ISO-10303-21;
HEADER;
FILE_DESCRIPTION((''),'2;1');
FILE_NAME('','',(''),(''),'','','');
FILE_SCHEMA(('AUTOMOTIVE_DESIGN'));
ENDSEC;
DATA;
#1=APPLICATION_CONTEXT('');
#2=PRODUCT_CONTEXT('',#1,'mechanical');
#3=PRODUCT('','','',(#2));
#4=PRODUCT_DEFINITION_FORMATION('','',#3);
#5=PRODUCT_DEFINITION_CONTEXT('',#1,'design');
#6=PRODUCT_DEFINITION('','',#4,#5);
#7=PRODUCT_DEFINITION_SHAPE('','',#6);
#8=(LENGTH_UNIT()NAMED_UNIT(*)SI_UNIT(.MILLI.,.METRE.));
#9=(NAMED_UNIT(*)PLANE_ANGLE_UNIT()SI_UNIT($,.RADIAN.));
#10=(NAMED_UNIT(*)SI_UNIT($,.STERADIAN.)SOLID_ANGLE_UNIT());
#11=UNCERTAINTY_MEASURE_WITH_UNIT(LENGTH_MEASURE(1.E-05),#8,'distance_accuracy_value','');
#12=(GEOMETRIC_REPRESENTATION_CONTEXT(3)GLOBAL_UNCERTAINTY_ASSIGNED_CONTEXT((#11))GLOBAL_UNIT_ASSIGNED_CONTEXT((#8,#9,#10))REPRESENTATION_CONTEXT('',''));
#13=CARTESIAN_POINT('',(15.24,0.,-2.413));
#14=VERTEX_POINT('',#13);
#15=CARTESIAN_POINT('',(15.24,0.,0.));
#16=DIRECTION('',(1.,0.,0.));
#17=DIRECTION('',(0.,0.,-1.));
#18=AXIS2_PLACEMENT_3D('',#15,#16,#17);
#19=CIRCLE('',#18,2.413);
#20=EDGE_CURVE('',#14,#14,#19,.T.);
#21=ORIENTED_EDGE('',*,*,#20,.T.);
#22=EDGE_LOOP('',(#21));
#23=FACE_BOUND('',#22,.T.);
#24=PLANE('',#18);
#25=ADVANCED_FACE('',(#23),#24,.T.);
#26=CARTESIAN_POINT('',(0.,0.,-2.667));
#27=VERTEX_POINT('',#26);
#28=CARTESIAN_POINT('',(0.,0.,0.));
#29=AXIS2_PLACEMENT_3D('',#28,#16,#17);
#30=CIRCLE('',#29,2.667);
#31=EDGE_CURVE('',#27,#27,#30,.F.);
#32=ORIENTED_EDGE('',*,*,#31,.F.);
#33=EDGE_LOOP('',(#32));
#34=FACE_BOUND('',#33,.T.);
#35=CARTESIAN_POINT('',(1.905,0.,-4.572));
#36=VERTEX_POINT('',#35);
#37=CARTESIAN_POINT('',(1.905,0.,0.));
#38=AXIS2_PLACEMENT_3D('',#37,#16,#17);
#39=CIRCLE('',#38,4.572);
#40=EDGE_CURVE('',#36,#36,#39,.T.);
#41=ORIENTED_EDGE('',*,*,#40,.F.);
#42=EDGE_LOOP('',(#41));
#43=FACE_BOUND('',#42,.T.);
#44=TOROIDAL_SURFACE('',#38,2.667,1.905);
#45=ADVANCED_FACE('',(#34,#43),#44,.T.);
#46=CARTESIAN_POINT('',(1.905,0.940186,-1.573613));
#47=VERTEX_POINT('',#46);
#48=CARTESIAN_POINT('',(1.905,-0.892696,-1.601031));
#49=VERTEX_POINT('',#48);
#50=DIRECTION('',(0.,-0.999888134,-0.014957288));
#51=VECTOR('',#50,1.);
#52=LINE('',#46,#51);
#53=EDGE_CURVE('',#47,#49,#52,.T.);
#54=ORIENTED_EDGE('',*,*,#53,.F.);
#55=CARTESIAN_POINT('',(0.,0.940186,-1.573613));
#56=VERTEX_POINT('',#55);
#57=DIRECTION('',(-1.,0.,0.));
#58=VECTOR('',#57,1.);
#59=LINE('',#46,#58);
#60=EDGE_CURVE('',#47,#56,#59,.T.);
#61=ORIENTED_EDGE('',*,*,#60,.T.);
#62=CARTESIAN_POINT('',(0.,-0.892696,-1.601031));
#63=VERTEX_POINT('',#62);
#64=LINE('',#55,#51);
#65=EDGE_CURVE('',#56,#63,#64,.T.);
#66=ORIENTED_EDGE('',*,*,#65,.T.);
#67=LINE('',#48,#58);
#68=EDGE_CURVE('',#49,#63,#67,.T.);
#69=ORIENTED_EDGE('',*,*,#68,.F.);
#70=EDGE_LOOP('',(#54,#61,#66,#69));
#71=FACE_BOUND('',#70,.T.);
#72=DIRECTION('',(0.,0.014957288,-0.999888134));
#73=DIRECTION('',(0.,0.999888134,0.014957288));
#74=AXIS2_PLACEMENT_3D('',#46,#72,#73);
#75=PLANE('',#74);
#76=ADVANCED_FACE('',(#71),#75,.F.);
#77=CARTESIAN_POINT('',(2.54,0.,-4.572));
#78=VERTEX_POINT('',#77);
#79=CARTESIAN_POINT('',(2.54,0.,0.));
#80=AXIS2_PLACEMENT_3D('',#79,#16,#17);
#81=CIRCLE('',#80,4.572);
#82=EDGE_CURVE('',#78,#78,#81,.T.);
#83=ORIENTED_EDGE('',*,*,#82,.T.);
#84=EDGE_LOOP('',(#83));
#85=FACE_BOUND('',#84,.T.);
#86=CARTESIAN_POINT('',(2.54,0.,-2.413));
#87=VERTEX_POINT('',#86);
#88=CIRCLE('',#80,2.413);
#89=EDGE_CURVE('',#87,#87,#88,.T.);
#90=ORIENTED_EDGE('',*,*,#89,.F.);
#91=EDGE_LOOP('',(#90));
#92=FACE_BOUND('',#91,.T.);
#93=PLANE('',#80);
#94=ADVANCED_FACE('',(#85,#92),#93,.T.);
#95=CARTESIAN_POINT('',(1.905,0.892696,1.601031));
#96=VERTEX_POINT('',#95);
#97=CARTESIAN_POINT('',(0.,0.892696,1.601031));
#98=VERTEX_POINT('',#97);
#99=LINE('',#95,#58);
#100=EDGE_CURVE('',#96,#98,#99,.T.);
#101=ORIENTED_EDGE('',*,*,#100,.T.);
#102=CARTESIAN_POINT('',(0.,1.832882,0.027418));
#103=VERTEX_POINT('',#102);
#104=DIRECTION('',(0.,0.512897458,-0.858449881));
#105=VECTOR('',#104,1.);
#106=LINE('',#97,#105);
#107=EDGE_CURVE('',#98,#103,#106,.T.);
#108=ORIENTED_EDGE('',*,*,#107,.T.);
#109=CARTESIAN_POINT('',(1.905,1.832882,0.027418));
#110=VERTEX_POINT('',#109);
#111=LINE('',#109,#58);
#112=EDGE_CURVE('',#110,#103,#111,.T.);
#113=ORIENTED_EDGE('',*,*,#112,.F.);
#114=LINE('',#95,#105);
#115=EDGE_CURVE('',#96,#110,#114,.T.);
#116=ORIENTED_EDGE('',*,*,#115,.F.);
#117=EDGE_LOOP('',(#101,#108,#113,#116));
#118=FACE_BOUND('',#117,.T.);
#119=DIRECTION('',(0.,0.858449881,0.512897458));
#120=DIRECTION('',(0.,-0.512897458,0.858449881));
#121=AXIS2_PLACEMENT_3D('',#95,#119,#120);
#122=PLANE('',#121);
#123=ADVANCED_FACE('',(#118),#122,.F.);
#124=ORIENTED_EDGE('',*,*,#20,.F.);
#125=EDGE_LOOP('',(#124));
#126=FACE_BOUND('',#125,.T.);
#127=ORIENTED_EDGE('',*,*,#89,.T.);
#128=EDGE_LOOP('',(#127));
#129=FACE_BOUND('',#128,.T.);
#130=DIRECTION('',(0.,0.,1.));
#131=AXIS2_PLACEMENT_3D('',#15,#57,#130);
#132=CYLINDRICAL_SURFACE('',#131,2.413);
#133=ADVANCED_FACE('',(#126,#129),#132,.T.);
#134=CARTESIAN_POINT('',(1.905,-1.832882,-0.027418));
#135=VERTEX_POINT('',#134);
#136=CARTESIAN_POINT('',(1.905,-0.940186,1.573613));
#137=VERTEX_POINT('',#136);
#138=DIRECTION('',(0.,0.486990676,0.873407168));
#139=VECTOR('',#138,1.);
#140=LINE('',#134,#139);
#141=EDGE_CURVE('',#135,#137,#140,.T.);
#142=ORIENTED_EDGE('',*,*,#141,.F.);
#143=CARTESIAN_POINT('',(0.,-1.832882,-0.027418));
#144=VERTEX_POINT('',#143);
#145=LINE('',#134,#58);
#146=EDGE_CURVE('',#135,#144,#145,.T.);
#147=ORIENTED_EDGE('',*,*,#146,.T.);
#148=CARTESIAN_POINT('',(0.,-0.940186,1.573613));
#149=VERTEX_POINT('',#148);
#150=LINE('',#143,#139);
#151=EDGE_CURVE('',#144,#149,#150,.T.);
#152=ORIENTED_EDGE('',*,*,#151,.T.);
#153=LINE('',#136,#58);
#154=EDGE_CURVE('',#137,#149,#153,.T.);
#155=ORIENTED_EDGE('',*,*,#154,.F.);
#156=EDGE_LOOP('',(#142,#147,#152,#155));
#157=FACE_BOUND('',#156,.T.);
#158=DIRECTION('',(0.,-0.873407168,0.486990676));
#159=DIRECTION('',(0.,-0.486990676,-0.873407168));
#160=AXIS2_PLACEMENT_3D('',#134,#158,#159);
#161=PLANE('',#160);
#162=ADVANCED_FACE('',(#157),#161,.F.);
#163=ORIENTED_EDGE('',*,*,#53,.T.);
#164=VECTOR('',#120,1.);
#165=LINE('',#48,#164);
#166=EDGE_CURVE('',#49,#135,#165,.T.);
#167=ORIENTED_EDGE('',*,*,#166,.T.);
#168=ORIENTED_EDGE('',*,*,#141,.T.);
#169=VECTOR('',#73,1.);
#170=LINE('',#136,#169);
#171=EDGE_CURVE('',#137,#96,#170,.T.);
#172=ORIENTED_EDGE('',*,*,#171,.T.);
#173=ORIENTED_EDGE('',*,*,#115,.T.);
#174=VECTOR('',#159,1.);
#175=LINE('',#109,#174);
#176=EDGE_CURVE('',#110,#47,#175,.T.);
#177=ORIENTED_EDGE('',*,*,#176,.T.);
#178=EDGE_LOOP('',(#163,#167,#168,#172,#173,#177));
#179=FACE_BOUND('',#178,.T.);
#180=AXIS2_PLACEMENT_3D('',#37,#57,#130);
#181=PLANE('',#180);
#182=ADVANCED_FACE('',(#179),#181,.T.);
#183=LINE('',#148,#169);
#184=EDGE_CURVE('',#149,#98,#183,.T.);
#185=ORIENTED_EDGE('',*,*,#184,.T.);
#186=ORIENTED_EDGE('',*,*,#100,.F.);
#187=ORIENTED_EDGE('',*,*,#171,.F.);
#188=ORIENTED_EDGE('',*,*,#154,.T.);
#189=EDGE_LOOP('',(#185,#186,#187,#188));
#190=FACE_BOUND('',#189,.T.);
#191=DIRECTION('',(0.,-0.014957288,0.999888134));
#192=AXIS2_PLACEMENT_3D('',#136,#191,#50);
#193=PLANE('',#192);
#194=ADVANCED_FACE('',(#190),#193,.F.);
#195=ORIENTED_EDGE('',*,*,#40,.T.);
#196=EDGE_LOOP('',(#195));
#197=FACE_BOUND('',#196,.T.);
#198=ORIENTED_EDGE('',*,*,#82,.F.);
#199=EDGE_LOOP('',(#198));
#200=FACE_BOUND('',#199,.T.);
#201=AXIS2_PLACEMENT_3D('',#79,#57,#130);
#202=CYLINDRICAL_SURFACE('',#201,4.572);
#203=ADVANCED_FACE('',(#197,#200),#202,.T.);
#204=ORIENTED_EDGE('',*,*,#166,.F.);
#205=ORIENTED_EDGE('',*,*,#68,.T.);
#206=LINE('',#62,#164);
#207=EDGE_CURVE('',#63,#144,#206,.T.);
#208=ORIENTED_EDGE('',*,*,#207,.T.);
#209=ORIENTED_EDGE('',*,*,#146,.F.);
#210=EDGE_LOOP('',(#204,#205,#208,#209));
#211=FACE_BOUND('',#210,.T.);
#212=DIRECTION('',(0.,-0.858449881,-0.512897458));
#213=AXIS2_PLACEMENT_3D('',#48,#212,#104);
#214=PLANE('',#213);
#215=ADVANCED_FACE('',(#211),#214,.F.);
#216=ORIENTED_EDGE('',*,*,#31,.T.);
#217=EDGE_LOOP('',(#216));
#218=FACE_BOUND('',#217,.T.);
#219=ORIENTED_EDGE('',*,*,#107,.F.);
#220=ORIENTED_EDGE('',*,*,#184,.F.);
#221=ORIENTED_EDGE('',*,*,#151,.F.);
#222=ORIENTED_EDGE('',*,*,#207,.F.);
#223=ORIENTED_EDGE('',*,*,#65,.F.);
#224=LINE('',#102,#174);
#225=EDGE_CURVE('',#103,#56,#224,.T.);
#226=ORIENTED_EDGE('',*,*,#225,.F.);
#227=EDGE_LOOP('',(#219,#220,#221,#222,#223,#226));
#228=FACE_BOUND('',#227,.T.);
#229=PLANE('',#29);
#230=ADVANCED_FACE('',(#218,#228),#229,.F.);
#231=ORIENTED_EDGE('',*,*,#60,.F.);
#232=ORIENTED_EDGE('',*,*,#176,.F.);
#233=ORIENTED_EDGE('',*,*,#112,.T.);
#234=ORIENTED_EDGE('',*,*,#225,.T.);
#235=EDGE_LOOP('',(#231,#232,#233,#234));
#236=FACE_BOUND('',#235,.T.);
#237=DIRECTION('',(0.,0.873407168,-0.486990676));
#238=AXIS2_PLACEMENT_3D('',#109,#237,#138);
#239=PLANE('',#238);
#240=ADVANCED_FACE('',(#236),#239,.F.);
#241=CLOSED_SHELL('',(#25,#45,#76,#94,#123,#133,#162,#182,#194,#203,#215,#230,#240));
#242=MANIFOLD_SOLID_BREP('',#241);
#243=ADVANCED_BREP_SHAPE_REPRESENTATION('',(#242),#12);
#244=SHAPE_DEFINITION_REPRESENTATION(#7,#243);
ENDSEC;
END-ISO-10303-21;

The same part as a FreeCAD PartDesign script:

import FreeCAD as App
import Part
import Sketcher
from FreeCAD import Vector
Q = App.Units.Quantity


def edges_at(feature, points):
    """Names of the edges that pass closest to the given points."""
    edges = feature.Shape.Edges
    near = lambda p: min(range(len(edges)), key=lambda i: edges[i].distToShape(Part.Vertex(*p))[0])
    return sorted({f"Edge{near(p) + 1}" for p in points})


def add_polygon(sketch, points):
    """Adds a closed chain of lines whose ends are joined by coincident constraints."""
    first, n = sketch.GeometryCount, len(points)
    for a, b in zip(points, points[1:] + points[:1]):
        sketch.addGeometry(Part.LineSegment(App.Vector(*a, 0), App.Vector(*b, 0)), False)
    for i in range(n):
        sketch.addConstraint(Sketcher.Constraint("Coincident", first + i, 2, first + (i + 1) % n, 1))

doc = App.newDocument("Part")
body = doc.addObject("PartDesign::Body", "Body")

# Sketch on YZ plane
sketch1 = body.newObject("Sketcher::SketchObject", "Sketch")
sketch1.AttachmentSupport = (doc.getObject("YZ_Plane"), [""])
sketch1.MapMode = "FlatFace"
sketch1.addGeometry(Part.Circle(Vector(0, 0, 0), Vector(0, 0, 1), 4.572), False)
sketch1.addConstraint(Sketcher.Constraint("Coincident", 0, 3, -1, 1))
sketch1.addConstraint(Sketcher.Constraint("Diameter", 0, Q("0.36 in")))
pad1 = body.newObject("PartDesign::Pad", "Pad")
pad1.Profile = sketch1
pad1.Length = Q("0.1 in")

# Sketch on YZ plane
sketch2 = body.newObject("Sketcher::SketchObject", "Sketch001")
sketch2.AttachmentSupport = (doc.getObject("YZ_Plane"), [""])
sketch2.MapMode = "FlatFace"
sketch2.AttachmentOffset = App.Placement(Vector(0, 0, 0.1 * 25.4), App.Rotation())
sketch2.addGeometry(Part.Circle(Vector(0, 0, 0), Vector(0, 0, 1), 2.413), False)
sketch2.addConstraint(Sketcher.Constraint("Coincident", 0, 3, -1, 1))
sketch2.addConstraint(Sketcher.Constraint("Diameter", 0, Q("0.19 in")))
pad2 = body.newObject("PartDesign::Pad", "Pad001")
pad2.Profile = sketch2
pad2.Length = Q("0.5 in")
doc.recompute()

fillet = body.newObject("PartDesign::Fillet", "Fillet")
fillet.Base = (pad2, edges_at(pad2, [(0, 0, 4.572)]))
fillet.Radius = Q("0.075 in")

# Sketch on YZ plane
sketch3 = body.newObject("Sketcher::SketchObject", "Sketch002")
sketch3.AttachmentSupport = (doc.getObject("YZ_Plane"), [""])
sketch3.MapMode = "FlatFace"
add_polygon(sketch3, [(-0.940186, 1.573613), (0.892696, 1.601031), (1.832882, 0.027418), (0.940186, -1.573613), (-0.892696, -1.601031), (-1.832882, -0.027418)])  # lines 0-5
sketch3.addConstraint(Sketcher.Constraint("Symmetric", 0, 2, 3, 2, -1, 1))
sketch3.addConstraint(Sketcher.Constraint("Symmetric", 1, 2, 4, 2, -1, 1))
sketch3.addConstraint(Sketcher.Constraint("Symmetric", 2, 2, 5, 2, -1, 1))
sketch3.addConstraint(Sketcher.Constraint("Equal", 0, 1))
sketch3.addConstraint(Sketcher.Constraint("Equal", 1, 2))
sketch3.addConstraint(Sketcher.Constraint("DistanceY", -1, 1, 0, 2, 1.601031))
sketch3.addConstraint(Sketcher.Constraint("DistanceY", -1, 1, 1, 2, 0.027418))
sketch3.addConstraint(Sketcher.Constraint("DistanceY", 2, 2, 1, 2, 1.601031))
sketch3.addConstraint(Sketcher.Constraint("DistanceX", 0, 2, 2, 2, 0.047489))
pocket1 = body.newObject("PartDesign::Pocket", "Pocket")
pocket1.Profile = sketch3
pocket1.Length = Q("0.075 in")
pocket1.Reversed = True

doc.recompute()
